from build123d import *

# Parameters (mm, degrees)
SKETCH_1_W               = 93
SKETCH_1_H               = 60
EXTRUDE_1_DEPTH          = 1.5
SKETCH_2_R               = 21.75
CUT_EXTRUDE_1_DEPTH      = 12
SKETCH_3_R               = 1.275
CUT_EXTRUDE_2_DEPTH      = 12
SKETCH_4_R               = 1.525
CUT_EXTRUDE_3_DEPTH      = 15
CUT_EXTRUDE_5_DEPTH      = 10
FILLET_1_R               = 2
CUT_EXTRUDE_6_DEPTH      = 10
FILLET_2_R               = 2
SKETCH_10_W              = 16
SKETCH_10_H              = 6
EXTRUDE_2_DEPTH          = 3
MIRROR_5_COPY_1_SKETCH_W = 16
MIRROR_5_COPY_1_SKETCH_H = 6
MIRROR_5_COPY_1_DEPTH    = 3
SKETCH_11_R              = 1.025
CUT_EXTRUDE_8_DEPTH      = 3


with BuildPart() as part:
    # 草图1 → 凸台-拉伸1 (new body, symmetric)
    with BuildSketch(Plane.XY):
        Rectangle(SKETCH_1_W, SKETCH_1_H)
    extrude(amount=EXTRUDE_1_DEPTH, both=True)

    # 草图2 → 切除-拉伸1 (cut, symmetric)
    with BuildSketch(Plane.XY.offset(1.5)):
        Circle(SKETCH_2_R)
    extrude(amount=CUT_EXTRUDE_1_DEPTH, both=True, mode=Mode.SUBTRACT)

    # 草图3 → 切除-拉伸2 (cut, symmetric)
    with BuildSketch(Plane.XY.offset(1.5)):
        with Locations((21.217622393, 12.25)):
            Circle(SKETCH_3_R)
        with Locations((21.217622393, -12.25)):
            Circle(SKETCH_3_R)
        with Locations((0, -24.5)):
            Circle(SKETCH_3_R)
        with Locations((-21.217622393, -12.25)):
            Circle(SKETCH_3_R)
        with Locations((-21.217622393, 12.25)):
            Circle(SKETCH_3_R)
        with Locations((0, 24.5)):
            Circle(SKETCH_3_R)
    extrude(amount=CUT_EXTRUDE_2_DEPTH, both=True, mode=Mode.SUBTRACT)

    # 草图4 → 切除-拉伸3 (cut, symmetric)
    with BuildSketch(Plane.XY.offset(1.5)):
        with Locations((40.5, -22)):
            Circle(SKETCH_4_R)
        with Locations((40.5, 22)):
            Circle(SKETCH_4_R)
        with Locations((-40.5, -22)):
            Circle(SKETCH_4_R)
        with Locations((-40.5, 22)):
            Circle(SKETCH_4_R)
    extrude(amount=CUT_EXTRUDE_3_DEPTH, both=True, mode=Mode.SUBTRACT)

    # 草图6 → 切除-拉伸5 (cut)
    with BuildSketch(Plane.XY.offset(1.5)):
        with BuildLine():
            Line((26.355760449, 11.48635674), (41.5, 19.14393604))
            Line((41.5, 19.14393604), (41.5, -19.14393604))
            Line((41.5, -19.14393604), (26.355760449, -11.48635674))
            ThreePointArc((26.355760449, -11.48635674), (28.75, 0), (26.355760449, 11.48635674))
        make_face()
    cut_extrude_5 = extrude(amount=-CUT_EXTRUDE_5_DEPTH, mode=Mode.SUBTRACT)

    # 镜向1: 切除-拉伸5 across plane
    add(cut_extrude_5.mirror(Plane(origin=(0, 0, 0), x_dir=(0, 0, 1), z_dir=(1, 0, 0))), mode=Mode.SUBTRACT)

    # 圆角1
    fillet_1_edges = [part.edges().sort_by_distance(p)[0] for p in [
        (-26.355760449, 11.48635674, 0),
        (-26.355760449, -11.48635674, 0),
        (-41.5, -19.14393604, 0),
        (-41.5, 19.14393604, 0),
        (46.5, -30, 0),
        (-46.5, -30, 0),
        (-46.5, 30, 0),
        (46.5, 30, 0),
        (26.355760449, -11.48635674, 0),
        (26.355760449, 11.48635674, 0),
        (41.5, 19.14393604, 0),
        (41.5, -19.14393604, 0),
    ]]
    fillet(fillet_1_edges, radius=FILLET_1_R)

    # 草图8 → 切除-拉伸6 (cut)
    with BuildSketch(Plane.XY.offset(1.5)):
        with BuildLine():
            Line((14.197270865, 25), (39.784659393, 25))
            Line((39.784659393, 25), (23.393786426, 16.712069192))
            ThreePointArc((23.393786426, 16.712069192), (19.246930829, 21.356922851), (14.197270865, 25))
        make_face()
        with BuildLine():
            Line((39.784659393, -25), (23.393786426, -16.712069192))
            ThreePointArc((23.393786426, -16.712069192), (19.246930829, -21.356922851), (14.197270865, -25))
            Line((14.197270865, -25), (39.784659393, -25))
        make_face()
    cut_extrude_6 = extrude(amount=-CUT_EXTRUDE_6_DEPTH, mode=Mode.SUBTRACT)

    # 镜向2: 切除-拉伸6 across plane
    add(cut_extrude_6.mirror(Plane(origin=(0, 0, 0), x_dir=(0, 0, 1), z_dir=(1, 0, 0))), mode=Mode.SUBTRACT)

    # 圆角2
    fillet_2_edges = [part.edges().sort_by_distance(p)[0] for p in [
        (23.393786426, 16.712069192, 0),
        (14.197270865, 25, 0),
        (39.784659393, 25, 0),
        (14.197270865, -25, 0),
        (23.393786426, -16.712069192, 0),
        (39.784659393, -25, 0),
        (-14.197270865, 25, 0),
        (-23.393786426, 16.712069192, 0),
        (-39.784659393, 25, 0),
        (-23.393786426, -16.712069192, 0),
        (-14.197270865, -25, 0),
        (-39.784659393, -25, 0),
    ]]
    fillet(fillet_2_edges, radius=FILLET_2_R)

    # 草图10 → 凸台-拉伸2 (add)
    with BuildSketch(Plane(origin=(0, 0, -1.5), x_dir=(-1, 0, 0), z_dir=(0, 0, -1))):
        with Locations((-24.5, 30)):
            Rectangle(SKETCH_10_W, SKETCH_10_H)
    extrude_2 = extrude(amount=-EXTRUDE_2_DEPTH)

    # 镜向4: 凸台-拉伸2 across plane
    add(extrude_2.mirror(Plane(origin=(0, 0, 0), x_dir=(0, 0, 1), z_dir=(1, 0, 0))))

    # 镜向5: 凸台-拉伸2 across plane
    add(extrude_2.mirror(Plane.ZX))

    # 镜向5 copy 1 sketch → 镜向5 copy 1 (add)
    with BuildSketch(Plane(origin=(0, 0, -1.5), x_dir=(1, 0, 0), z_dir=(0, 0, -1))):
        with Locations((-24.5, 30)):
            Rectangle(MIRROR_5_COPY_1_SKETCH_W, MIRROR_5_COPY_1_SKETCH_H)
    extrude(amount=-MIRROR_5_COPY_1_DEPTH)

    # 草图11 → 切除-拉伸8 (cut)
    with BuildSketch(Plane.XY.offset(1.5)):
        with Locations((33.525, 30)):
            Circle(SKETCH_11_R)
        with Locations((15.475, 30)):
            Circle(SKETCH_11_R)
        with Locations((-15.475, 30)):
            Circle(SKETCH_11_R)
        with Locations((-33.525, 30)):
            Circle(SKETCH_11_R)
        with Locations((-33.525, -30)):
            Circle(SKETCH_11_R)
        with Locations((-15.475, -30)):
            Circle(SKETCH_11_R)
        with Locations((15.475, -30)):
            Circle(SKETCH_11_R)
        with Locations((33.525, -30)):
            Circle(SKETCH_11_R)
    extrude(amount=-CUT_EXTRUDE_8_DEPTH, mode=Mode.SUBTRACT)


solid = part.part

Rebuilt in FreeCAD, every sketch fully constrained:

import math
import FreeCAD as App
import Part
import Sketcher
Q = App.Units.Quantity


def edges_at(feature, points):
    """Names of the edges that pass closest to the given points."""
    edges = feature.Shape.Edges
    near = lambda p: min(range(len(edges)), key=lambda i: edges[i].distToShape(Part.Vertex(*p))[0])
    return sorted({f"Edge{near(p) + 1}" for p in points})

doc = App.newDocument("Part")
body = doc.addObject("PartDesign::Body", "Body")

sketch1 = body.newObject("Sketcher::SketchObject", "Sketch")
sketch1.AttachmentSupport = (doc.getObject("XY_Plane"), [""])
sketch1.MapMode = "FlatFace"
sketch1.addGeometry([
    Part.LineSegment(App.Vector(-46, 30, 0), App.Vector(-46, -30, 0)),
    Part.LineSegment(App.Vector(-46, -30, 0), App.Vector(46, -30, 0)),
    Part.LineSegment(App.Vector(46, -30, 0), App.Vector(46, 30, 0)),
    Part.LineSegment(App.Vector(46, 30, 0), App.Vector(-46, 30, 0)),
], False)
sketch1.addConstraint([
    Sketcher.Constraint("Coincident", 0, 2, 1, 1),
    Sketcher.Constraint("Coincident", 1, 2, 2, 1),
    Sketcher.Constraint("Coincident", 2, 2, 3, 1),
    Sketcher.Constraint("Coincident", 3, 2, 0, 1),
    Sketcher.Constraint("Vertical", 0),
    Sketcher.Constraint("Horizontal", 1),
    Sketcher.Constraint("Vertical", 2),
    Sketcher.Constraint("Horizontal", 3),
    Sketcher.Constraint("Symmetric", 0, 2, 2, 2, -1, 1),
    Sketcher.Constraint("DistanceX", 1, 1, 1, 2, Q("93 mm")),
    Sketcher.Constraint("DistanceY", 0, 2, 0, 1, Q("60 mm")),
])
pad1 = body.newObject("PartDesign::Pad", "Pad")
pad1.Profile = sketch1
pad1.Length = 3
pad1.Midplane = True

sketch2 = body.newObject("Sketcher::SketchObject", "Sketch001")
sketch2.AttachmentSupport = (doc.getObject("XY_Plane"), [""])
sketch2.MapMode = "FlatFace"
sketch2.AttachmentOffset = App.Placement(App.Vector(0, 0, 1.5), App.Rotation())
sketch2.addGeometry(Part.Circle(App.Vector(0, 0, 0), App.Vector(0, 0, 1), 22), False)
sketch2.addConstraint([
    Sketcher.Constraint("Coincident", 0, 3, -1, 1),
    Sketcher.Constraint("Diameter", 0, Q("43.5 mm")),
])
pocket1 = body.newObject("PartDesign::Pocket", "Pocket")
pocket1.Profile = sketch2
pocket1.Length = 24
pocket1.Midplane = True

sketch3 = body.newObject("Sketcher::SketchObject", "Sketch002")
sketch3.AttachmentSupport = (doc.getObject("XY_Plane"), [""])
sketch3.MapMode = "FlatFace"
sketch3.AttachmentOffset = App.Placement(App.Vector(0, 0, 1.5), App.Rotation())
sketch3.addGeometry([
    Part.Circle(App.Vector(21.2, 12.2, 0), App.Vector(0, 0, 1), 1.3),
    Part.Circle(App.Vector(21.2, -12.2, 0), App.Vector(0, 0, 1), 1.3),
    Part.Circle(App.Vector(0, -24.5, 0), App.Vector(0, 0, 1), 1.3),
    Part.Circle(App.Vector(-21.2, -12.2, 0), App.Vector(0, 0, 1), 1.3),
    Part.Circle(App.Vector(-21.2, 12.2, 0), App.Vector(0, 0, 1), 1.3),
    Part.Circle(App.Vector(0, 24.5, 0), App.Vector(0, 0, 1), 1.3),
], False)
sketch3.addConstraint([
    Sketcher.Constraint("Equal", 0, 1),
    Sketcher.Constraint("Equal", 1, 2),
    Sketcher.Constraint("Equal", 2, 3),
    Sketcher.Constraint("Equal", 3, 4),
    Sketcher.Constraint("Equal", 4, 5),
    Sketcher.Constraint("Symmetric", 0, 3, 3, 3, -1, 1),
    Sketcher.Constraint("Symmetric", 1, 3, 4, 3, -1, 1),
    Sketcher.Constraint("Symmetric", 2, 3, 5, 3, -1, 1),
    Sketcher.Constraint("Symmetric", 1, 3, 3, 3, -2),
    Sketcher.Constraint("PointOnObject", 2, 3, -2),
    Sketcher.Constraint("Diameter", 0, Q("2.55 mm")),
    Sketcher.Constraint("DistanceY", 2, 3, 5, 3, Q("49 mm")),
    Sketcher.Constraint("DistanceY", 1, 3, 0, 3, Q("24.5 mm")),
    Sketcher.Constraint("DistanceX", -1, 1, 0, 3, Q("21.217622 mm")),
])
pocket2 = body.newObject("PartDesign::Pocket", "Pocket001")
pocket2.Profile = sketch3
pocket2.Length = 24
pocket2.Midplane = True

sketch4 = body.newObject("Sketcher::SketchObject", "Sketch003")
sketch4.AttachmentSupport = (doc.getObject("XY_Plane"), [""])
sketch4.MapMode = "FlatFace"
sketch4.AttachmentOffset = App.Placement(App.Vector(0, 0, 1.5), App.Rotation())
sketch4.addGeometry([
    Part.Circle(App.Vector(40.5, -22, 0), App.Vector(0, 0, 1), 1.5),
    Part.Circle(App.Vector(40.5, 22, 0), App.Vector(0, 0, 1), 1.5),
    Part.Circle(App.Vector(-40.5, -22, 0), App.Vector(0, 0, 1), 1.5),
    Part.Circle(App.Vector(-40.5, 22, 0), App.Vector(0, 0, 1), 1.5),
], False)
sketch4.addConstraint([
    Sketcher.Constraint("Equal", 0, 1),
    Sketcher.Constraint("Equal", 1, 2),
    Sketcher.Constraint("Equal", 2, 3),
    Sketcher.Constraint("Symmetric", 1, 3, 2, 3, -1, 1),
    Sketcher.Constraint("Symmetric", 0, 3, 3, 3, -1, 1),
    Sketcher.Constraint("Symmetric", 0, 3, 2, 3, -2),
    Sketcher.Constraint("Diameter", 0, Q("3.05 mm")),
    Sketcher.Constraint("DistanceY", 0, 3, -1, 1, Q("22 mm")),
    Sketcher.Constraint("DistanceX", 2, 3, 0, 3, Q("81 mm")),
])
pocket3 = body.newObject("PartDesign::Pocket", "Pocket002")
pocket3.Profile = sketch4
pocket3.Length = 30
pocket3.Midplane = True

sketch5 = body.newObject("Sketcher::SketchObject", "Sketch004")
sketch5.AttachmentSupport = (doc.getObject("XY_Plane"), [""])
sketch5.MapMode = "FlatFace"
sketch5.AttachmentOffset = App.Placement(App.Vector(0, 0, 1.5), App.Rotation())
sketch5.addGeometry([
    Part.LineSegment(App.Vector(42, 19, 0), App.Vector(26, 11, 0)),
    Part.ArcOfCircle(Part.Circle(App.Vector(0, 0, 0), App.Vector(0, 0, 1), 29), math.radians(-24), math.radians(24)),
    Part.LineSegment(App.Vector(26, -11, 0), App.Vector(42, -19, 0)),
    Part.LineSegment(App.Vector(42, -19, 0), App.Vector(42, 19, 0)),
], False)
sketch5.addConstraint([
    Sketcher.Constraint("Coincident", 0, 2, 1, 2),
    Sketcher.Constraint("Coincident", 1, 1, 2, 1),
    Sketcher.Constraint("Coincident", 2, 2, 3, 1),
    Sketcher.Constraint("Coincident", 3, 2, 0, 1),
    Sketcher.Constraint("Vertical", 3),
    Sketcher.Constraint("Coincident", 1, 3, -1, 1),
    Sketcher.Constraint("Vertical", 0, 2, 1, 1),
    Sketcher.Constraint("Equal", 0, 2),
    Sketcher.Constraint("Radius", 1, Q("28.75 mm")),
    Sketcher.Constraint("DistanceX", -1, 1, 2, 2, Q("41.5 mm")),
    Sketcher.Constraint("DistanceY", 3, 1, 3, 2, Q("38.287872 mm")),
    Sketcher.Constraint("DistanceX", -1, 1, 0, 2, Q("26.35576 mm")),
])
pocket4 = body.newObject("PartDesign::Pocket", "Pocket003")
pocket4.Profile = sketch5
pocket4.Length = 10
doc.recompute()

mirrored = body.newObject("PartDesign::Mirrored", "Mirrored")
mirrored.Originals = [pocket4]
mirrored.MirrorPlane = (doc.getObject("YZ_Plane"), [""])
body.Tip = mirrored
doc.recompute()

fillet = body.newObject("PartDesign::Fillet", "Fillet")
fillet.Base = (mirrored, edges_at(mirrored, [
    (-26.356, 11.486, 0),
    (-26.356, -11.486, 0),
    (-41.5, -19.144, 0),
    (-41.5, 19.144, 0),
    (46.5, -30, 0),
    (-46.5, -30, 0),
    (-46.5, 30, 0),
    (46.5, 30, 0),
    (26.356, -11.486, 0),
    (26.356, 11.486, 0),
    (41.5, 19.144, 0),
    (41.5, -19.144, 0),
]))
fillet.Radius = 2

sketch6 = body.newObject("Sketcher::SketchObject", "Sketch005")
sketch6.AttachmentSupport = (doc.getObject("XY_Plane"), [""])
sketch6.MapMode = "FlatFace"
sketch6.AttachmentOffset = App.Placement(App.Vector(0, 0, 1.5), App.Rotation())
sketch6.addGeometry([
    Part.LineSegment(App.Vector(40, 25, 0), App.Vector(14, 25, 0)),
    Part.ArcOfCircle(Part.Circle(App.Vector(0, 0, 0), App.Vector(0, 0, 1), 29), math.radians(36), math.radians(60)),
    Part.LineSegment(App.Vector(23, 17, 0), App.Vector(40, 25, 0)),
    Part.LineSegment(App.Vector(40, -25, 0), App.Vector(23, -17, 0)),
    Part.ArcOfCircle(Part.Circle(App.Vector(0, 0, 0), App.Vector(0, 0, 1), 29), math.radians(-60), math.radians(-36)),
    Part.LineSegment(App.Vector(14, -25, 0), App.Vector(40, -25, 0)),
], False)
sketch6.addConstraint([
    Sketcher.Constraint("Coincident", 0, 2, 1, 2),
    Sketcher.Constraint("Coincident", 1, 1, 2, 1),
    Sketcher.Constraint("Coincident", 2, 2, 0, 1),
    Sketcher.Constraint("Coincident", 3, 2, 4, 2),
    Sketcher.Constraint("Coincident", 4, 1, 5, 1),
    Sketcher.Constraint("Coincident", 5, 2, 3, 1),
    Sketcher.Constraint("Horizontal", 0),
    Sketcher.Constraint("Horizontal", 5),
    Sketcher.Constraint("Coincident", 1, 3, -1, 1),
    Sketcher.Constraint("Coincident", 4, 3, -1, 1),
    Sketcher.Constraint("Equal", 1, 4),
    Sketcher.Constraint("Symmetric", 2, 2, 5, 2, -1),
    Sketcher.Constraint("Vertical", 1, 1, 3, 2),
    Sketcher.Constraint("Radius", 1, Q("28.75 mm")),
    Sketcher.Constraint("DistanceY", -1, 1, 0, 2, Q("25 mm")),
    Sketcher.Constraint("DistanceX", 0, 2, 0, 1, Q("25.587389 mm")),
    Sketcher.Constraint("DistanceY", -1, 1, 1, 1, Q("16.712069 mm")),
])
pocket5 = body.newObject("PartDesign::Pocket", "Pocket004")
pocket5.Profile = sketch6
pocket5.Length = 10
doc.recompute()

mirrored2 = body.newObject("PartDesign::Mirrored", "Mirrored001")
mirrored2.Originals = [pocket5]
mirrored2.MirrorPlane = (doc.getObject("YZ_Plane"), [""])
body.Tip = mirrored2
doc.recompute()

fillet2 = body.newObject("PartDesign::Fillet", "Fillet001")
fillet2.Base = (mirrored2, edges_at(mirrored2, [
    (23.394, 16.712, 0),
    (14.197, 25, 0),
    (39.785, 25, 0),
    (14.197, -25, 0),
    (23.394, -16.712, 0),
    (39.785, -25, 0),
    (-14.197, 25, 0),
    (-23.394, 16.712, 0),
    (-39.785, 25, 0),
    (-23.394, -16.712, 0),
    (-14.197, -25, 0),
    (-39.785, -25, 0),
]))
fillet2.Radius = 2

sketch7 = body.newObject("Sketcher::SketchObject", "Sketch006")
sketch7.AttachmentSupport = (doc.getObject("XY_Plane"), [""])
sketch7.MapMode = "FlatFace"
sketch7.AttachmentOffset = App.Placement(App.Vector(0, 0, -1.5), App.Rotation())
sketch7.addGeometry([
    Part.LineSegment(App.Vector(32, 33, 0), App.Vector(32, 27, 0)),
    Part.LineSegment(App.Vector(32, 27, 0), App.Vector(16, 27, 0)),
    Part.LineSegment(App.Vector(16, 27, 0), App.Vector(16, 33, 0)),
    Part.LineSegment(App.Vector(16, 33, 0), App.Vector(32, 33, 0)),
], False)
sketch7.addConstraint([
    Sketcher.Constraint("Coincident", 0, 2, 1, 1),
    Sketcher.Constraint("Coincident", 1, 2, 2, 1),
    Sketcher.Constraint("Coincident", 2, 2, 3, 1),
    Sketcher.Constraint("Coincident", 3, 2, 0, 1),
    Sketcher.Constraint("Vertical", 0),
    Sketcher.Constraint("Horizontal", 1),
    Sketcher.Constraint("Vertical", 2),
    Sketcher.Constraint("Horizontal", 3),
    Sketcher.Constraint("DistanceX", 1, 2, 1, 1, Q("16 mm")),
    Sketcher.Constraint("DistanceY", 0, 2, 0, 1, Q("6 mm")),
    Sketcher.Constraint("DistanceY", -1, 1, 0, 2, Q("27 mm")),
    Sketcher.Constraint("DistanceX", -1, 1, 0, 2, Q("32.5 mm")),
])
pad2 = body.newObject("PartDesign::Pad", "Pad001")
pad2.Profile = sketch7
pad2.Length = 3
doc.recompute()

mirrored3 = body.newObject("PartDesign::Mirrored", "Mirrored002")
mirrored3.Originals = [pad2]
mirrored3.MirrorPlane = (doc.getObject("YZ_Plane"), [""])
body.Tip = mirrored3
doc.recompute()

mirrored4 = body.newObject("PartDesign::Mirrored", "Mirrored003")
mirrored4.Originals = [pad2]
mirrored4.MirrorPlane = (doc.getObject("XZ_Plane"), [""])
body.Tip = mirrored4

sketch8 = body.newObject("Sketcher::SketchObject", "Sketch007")
sketch8.AttachmentSupport = (doc.getObject("XY_Plane"), [""])
sketch8.MapMode = "FlatFace"
sketch8.AttachmentOffset = App.Placement(App.Vector(0, 0, -1.5), App.Rotation())
sketch8.addGeometry([
    Part.LineSegment(App.Vector(-32, -33, 0), App.Vector(-32, -27, 0)),
    Part.LineSegment(App.Vector(-32, -27, 0), App.Vector(-16, -27, 0)),
    Part.LineSegment(App.Vector(-16, -27, 0), App.Vector(-16, -33, 0)),
    Part.LineSegment(App.Vector(-16, -33, 0), App.Vector(-32, -33, 0)),
], False)
sketch8.addConstraint([
    Sketcher.Constraint("Coincident", 0, 2, 1, 1),
    Sketcher.Constraint("Coincident", 1, 2, 2, 1),
    Sketcher.Constraint("Coincident", 2, 2, 3, 1),
    Sketcher.Constraint("Coincident", 3, 2, 0, 1),
    Sketcher.Constraint("Vertical", 0),
    Sketcher.Constraint("Horizontal", 1),
    Sketcher.Constraint("Vertical", 2),
    Sketcher.Constraint("Horizontal", 3),
    Sketcher.Constraint("DistanceX", 1, 1, 1, 2, Q("16 mm")),
    Sketcher.Constraint("DistanceY", 0, 1, 0, 2, Q("6 mm")),
    Sketcher.Constraint("DistanceY", 0, 2, -1, 1, Q("27 mm")),
    Sketcher.Constraint("DistanceX", 0, 2, -1, 1, Q("32.5 mm")),
])
pad3 = body.newObject("PartDesign::Pad", "Pad002")
pad3.Profile = sketch8
pad3.Length = 3

sketch9 = body.newObject("Sketcher::SketchObject", "Sketch008")
sketch9.AttachmentSupport = (doc.getObject("XY_Plane"), [""])
sketch9.MapMode = "FlatFace"
sketch9.AttachmentOffset = App.Placement(App.Vector(0, 0, 1.5), App.Rotation())
sketch9.addGeometry([
    Part.Circle(App.Vector(33.5, 30, 0), App.Vector(0, 0, 1), 1),
    Part.Circle(App.Vector(15.5, 30, 0), App.Vector(0, 0, 1), 1),
    Part.Circle(App.Vector(-15.5, 30, 0), App.Vector(0, 0, 1), 1),
    Part.Circle(App.Vector(-33.5, 30, 0), App.Vector(0, 0, 1), 1),
    Part.Circle(App.Vector(-33.5, -30, 0), App.Vector(0, 0, 1), 1),
    Part.Circle(App.Vector(-15.5, -30, 0), App.Vector(0, 0, 1), 1),
    Part.Circle(App.Vector(15.5, -30, 0), App.Vector(0, 0, 1), 1),
    Part.Circle(App.Vector(33.5, -30, 0), App.Vector(0, 0, 1), 1),
], False)
sketch9.addConstraint([
    Sketcher.Constraint("Equal", 0, 1),
    Sketcher.Constraint("Equal", 1, 2),
    Sketcher.Constraint("Equal", 2, 3),
    Sketcher.Constraint("Equal", 3, 4),
    Sketcher.Constraint("Equal", 4, 5),
    Sketcher.Constraint("Equal", 5, 6),
    Sketcher.Constraint("Equal", 6, 7),
    Sketcher.Constraint("Symmetric", 0, 3, 4, 3, -1, 1),
    Sketcher.Constraint("Symmetric", 1, 3, 5, 3, -1, 1),
    Sketcher.Constraint("Symmetric", 2, 3, 6, 3, -1, 1),
    Sketcher.Constraint("Symmetric", 3, 3, 7, 3, -1, 1),
    Sketcher.Constraint("Symmetric", 1, 3, 2, 3, -2),
    Sketcher.Constraint("Symmetric", 0, 3, 3, 3, -2),
    Sketcher.Constraint("Horizontal", 0, 3, 1, 3),
    Sketcher.Constraint("Diameter", 0, Q("2.05 mm")),
    Sketcher.Constraint("DistanceY", -1, 1, 0, 3, Q("30 mm")),
    Sketcher.Constraint("DistanceX", 2, 3, 0, 3, Q("49 mm")),
    Sketcher.Constraint("DistanceX", 1, 3, 0, 3, Q("18.05 mm")),
])
pocket6 = body.newObject("PartDesign::Pocket", "Pocket005")
pocket6.Profile = sketch9
pocket6.Length = 3

doc.recompute()
